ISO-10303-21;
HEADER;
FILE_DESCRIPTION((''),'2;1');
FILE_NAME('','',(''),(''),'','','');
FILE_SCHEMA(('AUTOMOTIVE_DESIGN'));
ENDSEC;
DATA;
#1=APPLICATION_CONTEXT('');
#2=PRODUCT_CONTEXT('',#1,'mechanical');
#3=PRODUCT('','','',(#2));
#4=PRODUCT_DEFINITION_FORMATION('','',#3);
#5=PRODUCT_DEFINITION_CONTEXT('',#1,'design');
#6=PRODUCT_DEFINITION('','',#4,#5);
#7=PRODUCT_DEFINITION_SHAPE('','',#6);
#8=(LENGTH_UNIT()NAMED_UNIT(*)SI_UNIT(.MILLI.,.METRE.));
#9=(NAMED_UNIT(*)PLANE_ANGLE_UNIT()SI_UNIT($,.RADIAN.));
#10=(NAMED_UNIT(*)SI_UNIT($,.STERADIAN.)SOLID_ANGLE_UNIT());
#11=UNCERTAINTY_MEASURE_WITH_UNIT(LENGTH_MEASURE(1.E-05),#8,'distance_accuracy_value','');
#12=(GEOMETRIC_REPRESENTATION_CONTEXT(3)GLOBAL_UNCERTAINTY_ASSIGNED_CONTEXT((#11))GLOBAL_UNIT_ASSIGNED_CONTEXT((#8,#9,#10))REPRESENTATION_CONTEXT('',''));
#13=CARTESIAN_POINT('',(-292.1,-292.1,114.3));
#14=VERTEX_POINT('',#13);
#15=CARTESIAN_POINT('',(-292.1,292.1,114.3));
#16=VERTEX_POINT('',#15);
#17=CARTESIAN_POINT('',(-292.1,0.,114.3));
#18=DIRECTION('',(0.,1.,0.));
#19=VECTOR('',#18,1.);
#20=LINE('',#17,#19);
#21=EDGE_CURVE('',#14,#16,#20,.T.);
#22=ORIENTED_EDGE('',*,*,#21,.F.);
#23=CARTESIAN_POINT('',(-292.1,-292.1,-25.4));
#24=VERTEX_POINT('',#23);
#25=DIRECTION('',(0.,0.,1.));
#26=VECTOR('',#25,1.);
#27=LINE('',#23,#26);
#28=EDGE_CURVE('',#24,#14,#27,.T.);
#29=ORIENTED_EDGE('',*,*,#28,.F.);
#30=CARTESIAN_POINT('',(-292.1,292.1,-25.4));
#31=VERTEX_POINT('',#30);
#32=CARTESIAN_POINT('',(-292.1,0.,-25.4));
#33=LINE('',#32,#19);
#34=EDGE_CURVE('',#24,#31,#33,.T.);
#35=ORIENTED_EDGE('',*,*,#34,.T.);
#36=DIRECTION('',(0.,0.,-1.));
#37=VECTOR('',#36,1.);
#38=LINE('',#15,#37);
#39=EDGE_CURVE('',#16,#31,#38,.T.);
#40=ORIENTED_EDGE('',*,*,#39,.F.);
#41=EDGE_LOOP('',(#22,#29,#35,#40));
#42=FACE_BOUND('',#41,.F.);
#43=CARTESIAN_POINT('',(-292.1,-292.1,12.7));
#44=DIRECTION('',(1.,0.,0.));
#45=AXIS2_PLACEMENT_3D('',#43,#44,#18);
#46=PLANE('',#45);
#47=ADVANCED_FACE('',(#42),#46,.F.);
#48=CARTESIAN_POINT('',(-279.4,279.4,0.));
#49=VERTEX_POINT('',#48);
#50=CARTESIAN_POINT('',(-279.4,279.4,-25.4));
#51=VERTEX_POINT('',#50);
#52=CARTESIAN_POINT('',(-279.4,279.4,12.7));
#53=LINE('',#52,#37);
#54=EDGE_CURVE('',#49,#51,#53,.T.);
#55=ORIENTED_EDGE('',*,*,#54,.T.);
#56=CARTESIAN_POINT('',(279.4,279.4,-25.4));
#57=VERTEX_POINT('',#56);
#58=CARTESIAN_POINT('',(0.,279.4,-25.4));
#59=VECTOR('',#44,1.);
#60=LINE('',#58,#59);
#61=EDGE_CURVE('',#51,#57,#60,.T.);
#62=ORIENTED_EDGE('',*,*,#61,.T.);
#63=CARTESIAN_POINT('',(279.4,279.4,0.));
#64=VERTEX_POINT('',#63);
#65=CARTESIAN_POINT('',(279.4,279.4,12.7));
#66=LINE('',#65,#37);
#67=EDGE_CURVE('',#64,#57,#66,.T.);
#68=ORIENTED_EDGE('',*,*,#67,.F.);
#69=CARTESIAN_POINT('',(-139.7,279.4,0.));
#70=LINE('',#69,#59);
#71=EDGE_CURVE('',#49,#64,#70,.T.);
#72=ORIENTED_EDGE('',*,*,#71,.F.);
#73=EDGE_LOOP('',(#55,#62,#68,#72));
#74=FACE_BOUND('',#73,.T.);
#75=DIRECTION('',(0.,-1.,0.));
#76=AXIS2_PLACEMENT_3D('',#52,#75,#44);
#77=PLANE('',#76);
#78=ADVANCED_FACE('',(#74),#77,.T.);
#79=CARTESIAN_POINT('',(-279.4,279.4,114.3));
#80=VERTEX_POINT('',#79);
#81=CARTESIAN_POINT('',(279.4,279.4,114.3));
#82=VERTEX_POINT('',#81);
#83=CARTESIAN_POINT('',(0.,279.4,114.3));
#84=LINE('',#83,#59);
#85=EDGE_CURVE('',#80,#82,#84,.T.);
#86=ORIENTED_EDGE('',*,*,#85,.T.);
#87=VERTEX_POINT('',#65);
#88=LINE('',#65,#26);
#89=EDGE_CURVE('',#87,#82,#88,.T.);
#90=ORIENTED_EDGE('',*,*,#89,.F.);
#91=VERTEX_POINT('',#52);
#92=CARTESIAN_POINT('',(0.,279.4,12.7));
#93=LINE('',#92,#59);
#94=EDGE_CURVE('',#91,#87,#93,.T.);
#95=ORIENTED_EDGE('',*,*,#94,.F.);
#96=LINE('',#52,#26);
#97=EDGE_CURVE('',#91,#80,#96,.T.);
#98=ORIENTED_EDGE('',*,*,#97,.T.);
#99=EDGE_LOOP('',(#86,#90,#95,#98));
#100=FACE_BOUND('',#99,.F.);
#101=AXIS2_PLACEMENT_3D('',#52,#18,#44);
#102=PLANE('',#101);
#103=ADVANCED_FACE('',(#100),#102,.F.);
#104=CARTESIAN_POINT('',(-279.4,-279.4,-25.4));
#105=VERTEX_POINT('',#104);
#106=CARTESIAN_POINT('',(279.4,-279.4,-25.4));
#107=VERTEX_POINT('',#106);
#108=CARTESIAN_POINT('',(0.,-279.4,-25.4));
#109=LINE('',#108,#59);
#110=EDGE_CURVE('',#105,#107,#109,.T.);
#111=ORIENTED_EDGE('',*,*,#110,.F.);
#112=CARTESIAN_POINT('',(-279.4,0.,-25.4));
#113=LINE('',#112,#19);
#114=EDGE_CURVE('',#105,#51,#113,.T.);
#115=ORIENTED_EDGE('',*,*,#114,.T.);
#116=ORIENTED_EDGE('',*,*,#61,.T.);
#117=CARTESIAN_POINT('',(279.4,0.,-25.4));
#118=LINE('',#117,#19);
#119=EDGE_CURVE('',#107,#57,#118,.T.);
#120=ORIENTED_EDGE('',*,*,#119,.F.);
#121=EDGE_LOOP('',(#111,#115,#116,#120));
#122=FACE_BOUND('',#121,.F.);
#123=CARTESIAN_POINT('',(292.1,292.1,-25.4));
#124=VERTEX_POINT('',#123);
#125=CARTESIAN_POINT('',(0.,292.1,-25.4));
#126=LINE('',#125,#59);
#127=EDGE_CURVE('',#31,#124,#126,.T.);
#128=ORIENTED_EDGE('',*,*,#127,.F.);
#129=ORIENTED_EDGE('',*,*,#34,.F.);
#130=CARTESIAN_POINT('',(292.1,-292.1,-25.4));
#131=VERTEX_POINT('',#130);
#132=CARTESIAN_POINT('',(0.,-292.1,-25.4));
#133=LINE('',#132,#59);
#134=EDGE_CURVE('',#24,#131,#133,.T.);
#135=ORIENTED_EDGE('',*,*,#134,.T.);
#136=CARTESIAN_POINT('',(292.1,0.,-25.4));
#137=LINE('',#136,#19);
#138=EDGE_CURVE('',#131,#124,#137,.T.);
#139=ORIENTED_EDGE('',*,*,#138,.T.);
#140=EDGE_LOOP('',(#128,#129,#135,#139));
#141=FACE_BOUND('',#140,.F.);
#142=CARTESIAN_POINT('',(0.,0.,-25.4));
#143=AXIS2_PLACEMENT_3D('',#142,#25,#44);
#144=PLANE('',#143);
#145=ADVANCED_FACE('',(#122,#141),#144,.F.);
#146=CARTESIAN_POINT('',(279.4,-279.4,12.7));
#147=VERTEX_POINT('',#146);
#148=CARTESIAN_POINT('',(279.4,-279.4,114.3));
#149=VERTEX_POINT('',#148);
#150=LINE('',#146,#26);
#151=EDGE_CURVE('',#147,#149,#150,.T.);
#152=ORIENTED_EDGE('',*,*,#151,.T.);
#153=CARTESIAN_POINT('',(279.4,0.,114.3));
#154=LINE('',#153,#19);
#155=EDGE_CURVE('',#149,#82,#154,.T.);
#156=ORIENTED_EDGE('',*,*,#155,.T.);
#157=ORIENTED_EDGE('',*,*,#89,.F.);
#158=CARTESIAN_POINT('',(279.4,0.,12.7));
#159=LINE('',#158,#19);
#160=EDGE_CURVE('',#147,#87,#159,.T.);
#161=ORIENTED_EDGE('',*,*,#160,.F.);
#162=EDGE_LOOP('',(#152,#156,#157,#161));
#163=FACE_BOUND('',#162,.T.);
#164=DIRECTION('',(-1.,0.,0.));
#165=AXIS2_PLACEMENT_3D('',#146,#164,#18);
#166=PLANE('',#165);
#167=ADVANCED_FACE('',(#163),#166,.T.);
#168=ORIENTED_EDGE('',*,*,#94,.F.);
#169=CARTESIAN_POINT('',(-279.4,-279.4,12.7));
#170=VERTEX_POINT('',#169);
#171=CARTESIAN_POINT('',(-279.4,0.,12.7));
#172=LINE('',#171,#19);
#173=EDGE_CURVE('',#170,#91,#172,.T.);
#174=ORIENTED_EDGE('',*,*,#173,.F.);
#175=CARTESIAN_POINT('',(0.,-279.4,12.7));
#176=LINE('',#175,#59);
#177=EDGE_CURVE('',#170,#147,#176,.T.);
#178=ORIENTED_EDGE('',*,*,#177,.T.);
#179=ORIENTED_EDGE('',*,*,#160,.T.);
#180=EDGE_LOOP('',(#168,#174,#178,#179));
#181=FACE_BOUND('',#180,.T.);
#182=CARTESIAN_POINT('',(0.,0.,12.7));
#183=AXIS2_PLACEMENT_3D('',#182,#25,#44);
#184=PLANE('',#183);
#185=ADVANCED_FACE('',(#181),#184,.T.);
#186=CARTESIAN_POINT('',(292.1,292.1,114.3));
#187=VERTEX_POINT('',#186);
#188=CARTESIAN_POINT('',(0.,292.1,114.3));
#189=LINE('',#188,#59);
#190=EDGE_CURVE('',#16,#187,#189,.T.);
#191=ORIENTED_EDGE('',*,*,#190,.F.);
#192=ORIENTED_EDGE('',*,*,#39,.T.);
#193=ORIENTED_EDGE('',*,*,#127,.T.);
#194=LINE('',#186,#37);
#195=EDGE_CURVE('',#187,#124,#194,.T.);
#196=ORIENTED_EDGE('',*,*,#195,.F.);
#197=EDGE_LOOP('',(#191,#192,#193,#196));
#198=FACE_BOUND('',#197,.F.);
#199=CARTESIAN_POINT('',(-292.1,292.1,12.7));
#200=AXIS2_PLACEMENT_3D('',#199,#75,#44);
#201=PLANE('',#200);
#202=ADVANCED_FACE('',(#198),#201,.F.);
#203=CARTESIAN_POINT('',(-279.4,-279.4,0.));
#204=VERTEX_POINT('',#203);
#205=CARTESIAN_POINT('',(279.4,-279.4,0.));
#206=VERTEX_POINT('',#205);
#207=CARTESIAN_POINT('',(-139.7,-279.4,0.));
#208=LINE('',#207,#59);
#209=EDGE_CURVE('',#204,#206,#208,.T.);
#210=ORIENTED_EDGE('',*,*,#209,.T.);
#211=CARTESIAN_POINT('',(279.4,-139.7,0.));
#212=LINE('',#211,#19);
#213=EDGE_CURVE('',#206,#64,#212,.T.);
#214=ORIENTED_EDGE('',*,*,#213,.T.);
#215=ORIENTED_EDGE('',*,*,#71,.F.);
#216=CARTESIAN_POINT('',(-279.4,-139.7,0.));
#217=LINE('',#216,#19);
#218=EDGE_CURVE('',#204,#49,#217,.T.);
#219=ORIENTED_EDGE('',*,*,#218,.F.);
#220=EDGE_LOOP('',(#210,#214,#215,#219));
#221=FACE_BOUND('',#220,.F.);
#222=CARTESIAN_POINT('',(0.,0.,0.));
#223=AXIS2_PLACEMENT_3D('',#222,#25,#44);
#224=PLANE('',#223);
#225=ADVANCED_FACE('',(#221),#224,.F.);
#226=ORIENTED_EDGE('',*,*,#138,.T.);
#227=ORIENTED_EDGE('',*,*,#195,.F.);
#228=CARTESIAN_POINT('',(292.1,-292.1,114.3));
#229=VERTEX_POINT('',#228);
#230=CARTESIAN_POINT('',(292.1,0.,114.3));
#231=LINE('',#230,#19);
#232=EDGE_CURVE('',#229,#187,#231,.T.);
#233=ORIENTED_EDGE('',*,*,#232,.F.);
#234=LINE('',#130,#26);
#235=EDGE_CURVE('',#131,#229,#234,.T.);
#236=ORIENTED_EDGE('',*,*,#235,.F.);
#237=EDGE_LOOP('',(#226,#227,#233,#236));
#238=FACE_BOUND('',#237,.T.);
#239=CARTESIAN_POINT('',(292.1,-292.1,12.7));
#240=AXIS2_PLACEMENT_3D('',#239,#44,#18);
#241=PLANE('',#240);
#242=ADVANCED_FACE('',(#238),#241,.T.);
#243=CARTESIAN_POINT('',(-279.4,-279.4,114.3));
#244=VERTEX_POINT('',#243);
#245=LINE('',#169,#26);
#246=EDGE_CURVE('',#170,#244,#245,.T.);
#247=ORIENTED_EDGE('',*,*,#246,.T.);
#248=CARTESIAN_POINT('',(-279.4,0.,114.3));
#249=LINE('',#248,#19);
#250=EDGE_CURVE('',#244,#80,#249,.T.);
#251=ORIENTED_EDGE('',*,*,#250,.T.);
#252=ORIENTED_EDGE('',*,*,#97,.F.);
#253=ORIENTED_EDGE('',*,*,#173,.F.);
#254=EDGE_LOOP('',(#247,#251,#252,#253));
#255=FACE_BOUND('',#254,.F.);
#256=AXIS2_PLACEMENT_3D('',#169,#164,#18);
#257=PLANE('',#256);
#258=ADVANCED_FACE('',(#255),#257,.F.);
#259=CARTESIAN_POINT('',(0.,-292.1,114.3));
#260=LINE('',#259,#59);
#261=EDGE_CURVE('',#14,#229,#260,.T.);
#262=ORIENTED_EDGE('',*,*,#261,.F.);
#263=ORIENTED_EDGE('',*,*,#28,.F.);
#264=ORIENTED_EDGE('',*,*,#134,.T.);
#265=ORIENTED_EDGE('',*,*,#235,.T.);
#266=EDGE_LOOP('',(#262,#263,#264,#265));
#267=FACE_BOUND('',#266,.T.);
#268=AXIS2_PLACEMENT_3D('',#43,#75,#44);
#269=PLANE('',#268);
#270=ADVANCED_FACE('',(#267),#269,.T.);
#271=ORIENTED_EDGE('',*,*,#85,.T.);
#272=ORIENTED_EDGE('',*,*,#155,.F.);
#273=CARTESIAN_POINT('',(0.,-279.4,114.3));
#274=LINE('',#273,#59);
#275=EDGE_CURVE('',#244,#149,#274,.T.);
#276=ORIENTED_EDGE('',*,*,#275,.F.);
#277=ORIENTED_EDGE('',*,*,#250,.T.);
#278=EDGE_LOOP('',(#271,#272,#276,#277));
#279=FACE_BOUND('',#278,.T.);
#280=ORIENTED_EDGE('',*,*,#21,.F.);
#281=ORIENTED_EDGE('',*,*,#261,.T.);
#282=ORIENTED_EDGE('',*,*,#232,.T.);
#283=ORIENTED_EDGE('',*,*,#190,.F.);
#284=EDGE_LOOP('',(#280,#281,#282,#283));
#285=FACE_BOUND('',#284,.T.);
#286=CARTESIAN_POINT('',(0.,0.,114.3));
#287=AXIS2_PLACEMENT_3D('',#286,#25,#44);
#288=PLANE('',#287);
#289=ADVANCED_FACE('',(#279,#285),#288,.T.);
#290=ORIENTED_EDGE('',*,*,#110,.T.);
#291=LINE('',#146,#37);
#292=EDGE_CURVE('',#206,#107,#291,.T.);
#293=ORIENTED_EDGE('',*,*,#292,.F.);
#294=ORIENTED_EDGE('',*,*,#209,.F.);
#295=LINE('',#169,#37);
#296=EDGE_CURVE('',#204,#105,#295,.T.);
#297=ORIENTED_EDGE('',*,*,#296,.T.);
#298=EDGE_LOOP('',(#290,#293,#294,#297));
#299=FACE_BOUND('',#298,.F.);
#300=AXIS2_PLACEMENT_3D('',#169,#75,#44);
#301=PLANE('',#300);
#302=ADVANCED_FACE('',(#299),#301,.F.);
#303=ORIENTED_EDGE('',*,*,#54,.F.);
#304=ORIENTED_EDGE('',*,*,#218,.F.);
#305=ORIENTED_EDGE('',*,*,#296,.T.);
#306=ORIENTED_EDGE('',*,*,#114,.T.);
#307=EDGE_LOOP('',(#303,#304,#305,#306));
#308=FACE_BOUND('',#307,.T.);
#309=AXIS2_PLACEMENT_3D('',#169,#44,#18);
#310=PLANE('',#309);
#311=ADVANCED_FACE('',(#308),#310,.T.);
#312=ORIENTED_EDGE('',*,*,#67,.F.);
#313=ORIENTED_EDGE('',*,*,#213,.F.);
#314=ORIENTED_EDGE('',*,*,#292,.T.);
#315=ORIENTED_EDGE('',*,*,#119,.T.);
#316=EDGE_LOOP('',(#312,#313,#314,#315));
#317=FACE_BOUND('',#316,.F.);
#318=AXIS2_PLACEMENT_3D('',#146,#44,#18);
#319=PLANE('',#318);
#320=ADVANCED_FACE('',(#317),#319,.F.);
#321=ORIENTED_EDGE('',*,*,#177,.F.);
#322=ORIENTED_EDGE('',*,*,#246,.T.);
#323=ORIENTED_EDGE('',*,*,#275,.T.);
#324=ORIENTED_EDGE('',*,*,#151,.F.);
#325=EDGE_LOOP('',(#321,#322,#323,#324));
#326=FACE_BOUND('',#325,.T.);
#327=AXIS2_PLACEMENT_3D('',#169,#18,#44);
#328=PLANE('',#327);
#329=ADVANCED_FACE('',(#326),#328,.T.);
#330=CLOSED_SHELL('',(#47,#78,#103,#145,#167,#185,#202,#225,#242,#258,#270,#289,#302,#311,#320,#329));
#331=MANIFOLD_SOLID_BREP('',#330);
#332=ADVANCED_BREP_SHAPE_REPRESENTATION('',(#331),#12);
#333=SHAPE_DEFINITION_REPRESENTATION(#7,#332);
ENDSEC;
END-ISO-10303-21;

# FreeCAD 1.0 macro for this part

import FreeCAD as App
import Part
import Sketcher
from FreeCAD import Vector
Q = App.Units.Quantity


def add_polygon(sketch, points):
    """Adds a closed chain of lines whose ends are joined by coincident constraints."""
    first, n = sketch.GeometryCount, len(points)
    for a, b in zip(points, points[1:] + points[:1]):
        sketch.addGeometry(Part.LineSegment(App.Vector(*a, 0), App.Vector(*b, 0)), False)
    for i in range(n):
        sketch.addConstraint(Sketcher.Constraint("Coincident", first + i, 2, first + (i + 1) % n, 1))

doc = App.newDocument("Part")
body = doc.addObject("PartDesign::Body", "Body")

# Sketch on XY plane
sketch1 = body.newObject("Sketcher::SketchObject", "Sketch")
sketch1.AttachmentSupport = (doc.getObject("XY_Plane"), [""])
sketch1.MapMode = "FlatFace"
add_polygon(sketch1, [(-292, 292), (-292, -292), (292, -292), (292, 292)])  # lines 0-3
sketch1.addConstraint([
    Sketcher.Constraint("Vertical", 0),
    Sketcher.Constraint("Horizontal", 1),
    Sketcher.Constraint("Vertical", 2),
    Sketcher.Constraint("Horizontal", 3),
    Sketcher.Constraint("Symmetric", 0, 2, 2, 2, -1, 1),
    Sketcher.Constraint("Equal", 3, 0),
    Sketcher.Constraint("DistanceX", 1, 1, 1, 2, Q("23 in")),
])
pad1 = body.newObject("PartDesign::Pad", "Pad")
pad1.Profile = sketch1
pad1.Length = Q("0.5 in")

# Sketch on XY plane
sketch2 = body.newObject("Sketcher::SketchObject", "Sketch001")
sketch2.AttachmentSupport = (doc.getObject("XY_Plane"), [""])
sketch2.MapMode = "FlatFace"
sketch2.AttachmentOffset = App.Placement(Vector(0, 0, 0.5 * 25.4), App.Rotation())
add_polygon(sketch2, [(-292, 292), (-292, -292), (292, -292), (292, 292)])  # lines 0-3
add_polygon(sketch2, [(279, -279), (-279, -279), (-279, 279), (279, 279)])  # lines 4-7
sketch2.addConstraint([
    Sketcher.Constraint("Vertical", 0),
    Sketcher.Constraint("Horizontal", 1),
    Sketcher.Constraint("Vertical", 2),
    Sketcher.Constraint("Horizontal", 3),
    Sketcher.Constraint("Horizontal", 4),
    Sketcher.Constraint("Vertical", 5),
    Sketcher.Constraint("Horizontal", 6),
    Sketcher.Constraint("Vertical", 7),
    Sketcher.Constraint("Symmetric", 0, 2, 2, 2, -1, 1),
    Sketcher.Constraint("Symmetric", 4, 2, 6, 2, -1, 1),
    Sketcher.Constraint("Equal", 3, 0),
    Sketcher.Constraint("Equal", 6, 5),
    Sketcher.Constraint("DistanceX", 1, 1, 1, 2, Q("23 in")),
    Sketcher.Constraint("DistanceX", 4, 2, 4, 1, Q("22 in")),
])
pad2 = body.newObject("PartDesign::Pad", "Pad001")
pad2.Profile = sketch2
pad2.Type = "TwoLengths"
pad2.Length = Q("4 in")
pad2.Length2 = Q("1.5 in")

doc.recompute()
